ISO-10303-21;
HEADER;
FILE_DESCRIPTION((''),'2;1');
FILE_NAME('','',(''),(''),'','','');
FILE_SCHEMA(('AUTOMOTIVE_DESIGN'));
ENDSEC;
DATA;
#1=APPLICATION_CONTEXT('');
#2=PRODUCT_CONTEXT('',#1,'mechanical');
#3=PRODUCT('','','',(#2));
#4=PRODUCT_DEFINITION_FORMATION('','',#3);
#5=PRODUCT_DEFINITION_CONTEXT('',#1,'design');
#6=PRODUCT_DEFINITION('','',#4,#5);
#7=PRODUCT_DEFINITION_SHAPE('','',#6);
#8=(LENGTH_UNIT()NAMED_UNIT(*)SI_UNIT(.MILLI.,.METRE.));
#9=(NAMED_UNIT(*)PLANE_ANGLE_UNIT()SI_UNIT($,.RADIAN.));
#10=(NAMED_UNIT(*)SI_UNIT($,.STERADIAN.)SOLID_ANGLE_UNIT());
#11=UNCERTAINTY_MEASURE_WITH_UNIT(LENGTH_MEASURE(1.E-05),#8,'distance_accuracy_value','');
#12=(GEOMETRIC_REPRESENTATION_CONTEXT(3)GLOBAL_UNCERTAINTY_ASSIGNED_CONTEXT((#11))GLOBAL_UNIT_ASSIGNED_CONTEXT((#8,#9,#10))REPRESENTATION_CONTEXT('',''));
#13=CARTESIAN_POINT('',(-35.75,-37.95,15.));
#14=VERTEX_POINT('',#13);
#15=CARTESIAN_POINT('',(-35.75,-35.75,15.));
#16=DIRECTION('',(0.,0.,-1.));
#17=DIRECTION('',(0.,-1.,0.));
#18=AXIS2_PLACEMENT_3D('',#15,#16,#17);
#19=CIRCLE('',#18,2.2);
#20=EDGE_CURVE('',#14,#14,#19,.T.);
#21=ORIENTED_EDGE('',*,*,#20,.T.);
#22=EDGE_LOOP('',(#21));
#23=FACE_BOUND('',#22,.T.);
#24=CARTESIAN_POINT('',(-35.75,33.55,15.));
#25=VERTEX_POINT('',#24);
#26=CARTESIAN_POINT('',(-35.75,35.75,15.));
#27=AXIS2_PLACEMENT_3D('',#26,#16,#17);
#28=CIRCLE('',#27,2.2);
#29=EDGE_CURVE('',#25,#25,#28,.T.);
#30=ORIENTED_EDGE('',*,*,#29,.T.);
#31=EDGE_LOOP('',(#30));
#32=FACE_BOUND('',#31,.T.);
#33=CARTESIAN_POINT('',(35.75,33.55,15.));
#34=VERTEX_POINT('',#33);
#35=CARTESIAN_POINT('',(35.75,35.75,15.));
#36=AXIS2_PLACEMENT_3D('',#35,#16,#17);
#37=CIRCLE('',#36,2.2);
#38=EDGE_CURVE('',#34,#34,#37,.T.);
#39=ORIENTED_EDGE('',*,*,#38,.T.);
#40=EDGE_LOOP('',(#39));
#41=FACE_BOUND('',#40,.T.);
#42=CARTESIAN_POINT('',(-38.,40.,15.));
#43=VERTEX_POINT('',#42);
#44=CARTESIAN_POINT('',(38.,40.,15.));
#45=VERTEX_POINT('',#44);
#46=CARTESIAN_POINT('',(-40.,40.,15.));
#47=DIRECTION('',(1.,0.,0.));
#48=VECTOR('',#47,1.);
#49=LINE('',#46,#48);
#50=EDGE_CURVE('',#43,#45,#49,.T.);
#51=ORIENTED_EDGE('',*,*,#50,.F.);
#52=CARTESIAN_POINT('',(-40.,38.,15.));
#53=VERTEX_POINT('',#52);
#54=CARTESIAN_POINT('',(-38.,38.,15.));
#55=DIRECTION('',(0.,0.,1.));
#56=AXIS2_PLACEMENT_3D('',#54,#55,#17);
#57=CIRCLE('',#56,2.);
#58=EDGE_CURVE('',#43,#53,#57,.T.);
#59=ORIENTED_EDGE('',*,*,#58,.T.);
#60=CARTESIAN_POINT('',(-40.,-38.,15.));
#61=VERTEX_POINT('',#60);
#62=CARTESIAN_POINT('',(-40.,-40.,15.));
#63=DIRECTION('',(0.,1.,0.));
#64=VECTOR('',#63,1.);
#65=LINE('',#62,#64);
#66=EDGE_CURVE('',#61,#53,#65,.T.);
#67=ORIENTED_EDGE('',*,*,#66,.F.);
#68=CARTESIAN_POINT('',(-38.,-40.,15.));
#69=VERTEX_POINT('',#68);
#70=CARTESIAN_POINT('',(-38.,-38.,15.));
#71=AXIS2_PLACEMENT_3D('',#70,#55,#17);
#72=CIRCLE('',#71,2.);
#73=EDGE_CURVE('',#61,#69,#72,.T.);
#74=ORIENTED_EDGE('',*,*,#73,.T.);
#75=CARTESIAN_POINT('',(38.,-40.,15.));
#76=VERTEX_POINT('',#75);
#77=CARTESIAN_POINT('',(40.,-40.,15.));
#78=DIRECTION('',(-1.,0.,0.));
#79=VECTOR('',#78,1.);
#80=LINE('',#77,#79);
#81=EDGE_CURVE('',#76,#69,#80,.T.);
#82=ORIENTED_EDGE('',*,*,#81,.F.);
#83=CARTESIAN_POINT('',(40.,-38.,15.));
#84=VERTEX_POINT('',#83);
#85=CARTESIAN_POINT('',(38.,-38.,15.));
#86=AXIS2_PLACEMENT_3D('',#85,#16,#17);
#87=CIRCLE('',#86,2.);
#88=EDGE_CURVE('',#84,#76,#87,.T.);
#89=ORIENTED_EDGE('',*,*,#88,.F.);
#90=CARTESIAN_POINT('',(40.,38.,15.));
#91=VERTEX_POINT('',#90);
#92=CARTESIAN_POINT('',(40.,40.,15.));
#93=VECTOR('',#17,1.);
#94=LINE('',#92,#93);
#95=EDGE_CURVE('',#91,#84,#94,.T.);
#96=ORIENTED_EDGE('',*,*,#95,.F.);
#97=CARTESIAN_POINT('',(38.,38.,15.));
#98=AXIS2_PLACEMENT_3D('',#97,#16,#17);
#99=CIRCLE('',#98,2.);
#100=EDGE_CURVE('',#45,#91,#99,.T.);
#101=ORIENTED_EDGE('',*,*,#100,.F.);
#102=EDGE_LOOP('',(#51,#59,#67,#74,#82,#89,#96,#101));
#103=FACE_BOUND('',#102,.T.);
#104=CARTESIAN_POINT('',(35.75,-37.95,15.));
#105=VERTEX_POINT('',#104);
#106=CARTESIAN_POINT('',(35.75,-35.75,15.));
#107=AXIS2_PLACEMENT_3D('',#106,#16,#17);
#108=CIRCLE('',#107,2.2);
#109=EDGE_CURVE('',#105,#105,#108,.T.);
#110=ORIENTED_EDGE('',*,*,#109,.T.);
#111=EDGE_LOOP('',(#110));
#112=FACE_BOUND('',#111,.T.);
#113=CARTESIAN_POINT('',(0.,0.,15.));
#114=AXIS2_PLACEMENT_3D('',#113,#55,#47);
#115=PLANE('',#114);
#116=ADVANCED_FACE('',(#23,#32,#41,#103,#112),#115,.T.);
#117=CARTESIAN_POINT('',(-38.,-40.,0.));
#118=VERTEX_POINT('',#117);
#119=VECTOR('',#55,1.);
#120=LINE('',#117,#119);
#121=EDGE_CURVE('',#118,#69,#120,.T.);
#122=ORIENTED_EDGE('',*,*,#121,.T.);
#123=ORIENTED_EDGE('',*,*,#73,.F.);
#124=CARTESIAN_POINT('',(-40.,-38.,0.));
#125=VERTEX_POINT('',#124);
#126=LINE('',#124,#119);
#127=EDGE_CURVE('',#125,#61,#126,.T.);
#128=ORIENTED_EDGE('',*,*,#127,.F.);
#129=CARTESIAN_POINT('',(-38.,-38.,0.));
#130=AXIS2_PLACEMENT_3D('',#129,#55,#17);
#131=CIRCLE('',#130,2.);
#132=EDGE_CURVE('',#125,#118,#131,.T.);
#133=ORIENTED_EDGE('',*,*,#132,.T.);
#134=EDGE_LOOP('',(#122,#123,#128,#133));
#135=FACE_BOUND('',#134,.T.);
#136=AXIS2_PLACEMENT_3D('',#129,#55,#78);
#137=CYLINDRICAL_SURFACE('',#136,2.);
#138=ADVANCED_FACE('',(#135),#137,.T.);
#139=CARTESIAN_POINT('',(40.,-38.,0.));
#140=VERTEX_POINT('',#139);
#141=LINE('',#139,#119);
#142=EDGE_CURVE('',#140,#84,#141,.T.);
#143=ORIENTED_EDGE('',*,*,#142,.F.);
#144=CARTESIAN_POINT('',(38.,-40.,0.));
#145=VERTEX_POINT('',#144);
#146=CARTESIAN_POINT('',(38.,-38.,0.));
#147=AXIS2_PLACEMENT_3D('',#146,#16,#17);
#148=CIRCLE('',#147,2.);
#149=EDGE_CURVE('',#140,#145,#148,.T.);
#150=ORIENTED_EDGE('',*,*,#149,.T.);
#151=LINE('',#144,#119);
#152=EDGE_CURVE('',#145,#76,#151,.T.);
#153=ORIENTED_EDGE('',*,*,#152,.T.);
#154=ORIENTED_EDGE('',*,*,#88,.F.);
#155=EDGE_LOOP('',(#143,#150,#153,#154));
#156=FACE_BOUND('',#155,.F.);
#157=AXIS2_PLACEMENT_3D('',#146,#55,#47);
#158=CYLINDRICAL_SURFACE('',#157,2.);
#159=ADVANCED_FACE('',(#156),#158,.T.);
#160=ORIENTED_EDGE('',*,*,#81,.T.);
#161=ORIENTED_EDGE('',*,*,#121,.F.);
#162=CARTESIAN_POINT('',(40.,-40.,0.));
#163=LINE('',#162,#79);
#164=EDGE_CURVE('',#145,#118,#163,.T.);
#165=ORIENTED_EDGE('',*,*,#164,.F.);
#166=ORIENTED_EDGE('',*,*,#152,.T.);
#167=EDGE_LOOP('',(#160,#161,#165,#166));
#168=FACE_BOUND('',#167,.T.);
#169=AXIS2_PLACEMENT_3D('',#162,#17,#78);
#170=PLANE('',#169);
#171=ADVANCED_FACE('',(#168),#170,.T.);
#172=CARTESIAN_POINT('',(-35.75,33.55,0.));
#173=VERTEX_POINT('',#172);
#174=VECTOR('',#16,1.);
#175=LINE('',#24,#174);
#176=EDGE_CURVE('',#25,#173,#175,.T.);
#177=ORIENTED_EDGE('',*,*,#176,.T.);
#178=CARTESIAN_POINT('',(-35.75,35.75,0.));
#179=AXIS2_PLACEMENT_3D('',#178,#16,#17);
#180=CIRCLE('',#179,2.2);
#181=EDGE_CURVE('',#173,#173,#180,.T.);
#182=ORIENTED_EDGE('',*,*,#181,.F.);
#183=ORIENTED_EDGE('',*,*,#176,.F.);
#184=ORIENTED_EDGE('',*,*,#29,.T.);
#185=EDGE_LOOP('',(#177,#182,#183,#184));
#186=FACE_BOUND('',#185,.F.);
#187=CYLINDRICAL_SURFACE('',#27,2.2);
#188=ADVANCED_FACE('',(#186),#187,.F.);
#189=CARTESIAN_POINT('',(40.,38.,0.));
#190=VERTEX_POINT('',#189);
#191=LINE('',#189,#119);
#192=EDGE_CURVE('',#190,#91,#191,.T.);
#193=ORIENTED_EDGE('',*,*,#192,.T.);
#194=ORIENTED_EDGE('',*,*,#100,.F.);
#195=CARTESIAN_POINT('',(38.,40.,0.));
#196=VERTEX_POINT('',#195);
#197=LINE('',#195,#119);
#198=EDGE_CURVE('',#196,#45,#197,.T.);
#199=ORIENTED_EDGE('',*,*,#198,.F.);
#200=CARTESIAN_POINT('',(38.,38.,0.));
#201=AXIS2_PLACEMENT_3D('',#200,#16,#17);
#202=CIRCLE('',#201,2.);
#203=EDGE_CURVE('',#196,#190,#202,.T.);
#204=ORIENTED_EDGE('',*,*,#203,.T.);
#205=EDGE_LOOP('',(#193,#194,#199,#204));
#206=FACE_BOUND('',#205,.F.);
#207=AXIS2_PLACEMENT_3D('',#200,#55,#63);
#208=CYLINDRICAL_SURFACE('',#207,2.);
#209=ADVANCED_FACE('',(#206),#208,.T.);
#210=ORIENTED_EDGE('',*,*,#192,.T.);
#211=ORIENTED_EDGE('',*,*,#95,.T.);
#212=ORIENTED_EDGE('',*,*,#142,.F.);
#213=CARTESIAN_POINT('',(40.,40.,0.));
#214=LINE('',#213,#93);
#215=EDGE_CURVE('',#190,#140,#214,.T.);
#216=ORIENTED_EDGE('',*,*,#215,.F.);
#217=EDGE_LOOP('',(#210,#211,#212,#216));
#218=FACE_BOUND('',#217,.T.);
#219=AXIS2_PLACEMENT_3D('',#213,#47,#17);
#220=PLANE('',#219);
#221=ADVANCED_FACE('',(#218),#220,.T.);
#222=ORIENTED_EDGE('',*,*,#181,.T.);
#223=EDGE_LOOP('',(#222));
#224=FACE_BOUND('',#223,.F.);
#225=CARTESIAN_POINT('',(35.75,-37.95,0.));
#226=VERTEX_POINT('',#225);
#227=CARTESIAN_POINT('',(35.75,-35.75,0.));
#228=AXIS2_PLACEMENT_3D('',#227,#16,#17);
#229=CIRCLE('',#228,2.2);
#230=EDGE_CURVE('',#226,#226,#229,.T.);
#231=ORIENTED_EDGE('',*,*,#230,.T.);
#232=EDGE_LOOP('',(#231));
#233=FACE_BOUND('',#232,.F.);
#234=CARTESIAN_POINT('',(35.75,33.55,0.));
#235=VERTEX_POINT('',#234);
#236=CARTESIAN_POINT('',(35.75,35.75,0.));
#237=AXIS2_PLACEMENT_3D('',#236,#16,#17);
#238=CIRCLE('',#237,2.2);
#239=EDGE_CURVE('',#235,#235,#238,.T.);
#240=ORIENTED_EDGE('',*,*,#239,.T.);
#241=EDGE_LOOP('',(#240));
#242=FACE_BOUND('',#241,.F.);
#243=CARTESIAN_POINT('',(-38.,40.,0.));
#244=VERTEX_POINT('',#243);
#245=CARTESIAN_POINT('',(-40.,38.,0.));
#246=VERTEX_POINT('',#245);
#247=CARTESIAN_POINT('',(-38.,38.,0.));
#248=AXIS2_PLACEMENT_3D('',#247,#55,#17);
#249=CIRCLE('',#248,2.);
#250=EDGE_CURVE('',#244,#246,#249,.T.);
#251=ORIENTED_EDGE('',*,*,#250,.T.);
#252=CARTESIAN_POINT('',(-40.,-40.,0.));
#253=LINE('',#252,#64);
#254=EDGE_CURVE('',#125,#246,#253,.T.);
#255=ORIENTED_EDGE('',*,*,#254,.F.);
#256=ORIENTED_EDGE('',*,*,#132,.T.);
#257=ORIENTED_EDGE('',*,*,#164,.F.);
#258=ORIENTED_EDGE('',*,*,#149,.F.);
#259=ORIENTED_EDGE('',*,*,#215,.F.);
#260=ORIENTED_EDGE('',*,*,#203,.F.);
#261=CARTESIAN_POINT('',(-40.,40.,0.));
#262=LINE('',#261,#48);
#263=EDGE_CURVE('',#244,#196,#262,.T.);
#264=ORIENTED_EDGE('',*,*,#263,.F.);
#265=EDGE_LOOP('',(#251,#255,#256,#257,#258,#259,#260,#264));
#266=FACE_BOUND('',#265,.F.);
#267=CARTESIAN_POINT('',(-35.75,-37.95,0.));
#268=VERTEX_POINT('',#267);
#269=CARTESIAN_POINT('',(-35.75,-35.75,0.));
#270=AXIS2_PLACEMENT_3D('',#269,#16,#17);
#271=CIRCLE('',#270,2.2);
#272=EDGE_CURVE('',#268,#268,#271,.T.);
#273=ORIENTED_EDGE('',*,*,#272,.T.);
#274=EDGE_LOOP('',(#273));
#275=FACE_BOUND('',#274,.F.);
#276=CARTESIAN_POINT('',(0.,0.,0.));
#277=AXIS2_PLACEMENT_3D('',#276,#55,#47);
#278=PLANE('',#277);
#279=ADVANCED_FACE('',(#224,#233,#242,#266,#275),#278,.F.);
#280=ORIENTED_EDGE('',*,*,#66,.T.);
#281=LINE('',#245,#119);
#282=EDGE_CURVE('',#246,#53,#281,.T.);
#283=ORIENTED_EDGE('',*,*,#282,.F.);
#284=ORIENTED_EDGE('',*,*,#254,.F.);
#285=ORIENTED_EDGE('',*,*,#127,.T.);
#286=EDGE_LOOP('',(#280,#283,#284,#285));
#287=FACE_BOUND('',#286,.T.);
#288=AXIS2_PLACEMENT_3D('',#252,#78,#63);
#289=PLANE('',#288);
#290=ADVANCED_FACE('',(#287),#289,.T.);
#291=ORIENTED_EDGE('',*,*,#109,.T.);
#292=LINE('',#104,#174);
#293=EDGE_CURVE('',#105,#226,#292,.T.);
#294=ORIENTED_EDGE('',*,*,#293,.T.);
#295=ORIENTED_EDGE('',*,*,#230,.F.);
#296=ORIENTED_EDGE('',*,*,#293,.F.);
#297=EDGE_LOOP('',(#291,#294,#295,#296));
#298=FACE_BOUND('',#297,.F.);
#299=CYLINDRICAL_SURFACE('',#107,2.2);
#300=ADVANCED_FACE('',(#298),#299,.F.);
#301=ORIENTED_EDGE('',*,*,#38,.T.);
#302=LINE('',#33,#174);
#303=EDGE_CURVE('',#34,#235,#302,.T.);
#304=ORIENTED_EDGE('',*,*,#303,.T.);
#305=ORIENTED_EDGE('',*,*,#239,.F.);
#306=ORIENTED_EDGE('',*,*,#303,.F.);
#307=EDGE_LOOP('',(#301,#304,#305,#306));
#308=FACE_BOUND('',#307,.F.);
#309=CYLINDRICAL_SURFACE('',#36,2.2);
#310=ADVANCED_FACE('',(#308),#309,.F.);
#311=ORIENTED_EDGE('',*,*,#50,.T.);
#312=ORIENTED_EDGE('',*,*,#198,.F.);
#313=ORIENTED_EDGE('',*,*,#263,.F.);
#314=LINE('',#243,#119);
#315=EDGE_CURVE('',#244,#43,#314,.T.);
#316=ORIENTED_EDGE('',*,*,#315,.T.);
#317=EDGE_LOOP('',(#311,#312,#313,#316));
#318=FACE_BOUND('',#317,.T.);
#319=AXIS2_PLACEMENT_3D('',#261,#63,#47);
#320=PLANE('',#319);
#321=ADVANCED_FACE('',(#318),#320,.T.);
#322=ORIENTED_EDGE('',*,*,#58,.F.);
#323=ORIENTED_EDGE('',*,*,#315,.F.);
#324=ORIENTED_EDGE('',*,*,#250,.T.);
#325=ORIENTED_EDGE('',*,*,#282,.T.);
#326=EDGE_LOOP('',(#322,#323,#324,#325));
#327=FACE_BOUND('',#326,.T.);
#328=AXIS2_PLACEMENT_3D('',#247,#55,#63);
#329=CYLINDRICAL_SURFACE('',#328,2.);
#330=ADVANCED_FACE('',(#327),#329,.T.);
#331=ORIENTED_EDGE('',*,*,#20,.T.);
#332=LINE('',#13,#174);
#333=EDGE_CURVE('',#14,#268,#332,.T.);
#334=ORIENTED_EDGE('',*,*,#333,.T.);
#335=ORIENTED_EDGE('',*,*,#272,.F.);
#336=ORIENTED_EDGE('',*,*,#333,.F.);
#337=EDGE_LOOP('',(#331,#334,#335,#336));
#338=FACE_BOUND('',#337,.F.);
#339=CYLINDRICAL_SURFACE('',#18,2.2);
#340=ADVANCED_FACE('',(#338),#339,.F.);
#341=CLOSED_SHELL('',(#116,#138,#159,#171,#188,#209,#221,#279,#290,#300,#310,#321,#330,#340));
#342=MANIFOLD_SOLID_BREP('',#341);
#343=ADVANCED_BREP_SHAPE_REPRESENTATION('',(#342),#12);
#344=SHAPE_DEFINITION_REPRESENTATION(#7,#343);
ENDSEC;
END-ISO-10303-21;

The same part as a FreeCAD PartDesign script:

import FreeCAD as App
import Part
import Sketcher
Q = App.Units.Quantity


def edges_at(feature, points):
    """Names of the edges that pass closest to the given points."""
    edges = feature.Shape.Edges
    near = lambda p: min(range(len(edges)), key=lambda i: edges[i].distToShape(Part.Vertex(*p))[0])
    return sorted({f"Edge{near(p) + 1}" for p in points})

doc = App.newDocument("Part")
body = doc.addObject("PartDesign::Body", "Body")

sketch1 = body.newObject("Sketcher::SketchObject", "Sketch")
sketch1.AttachmentSupport = (doc.getObject("XY_Plane"), [""])
sketch1.MapMode = "FlatFace"
sketch1.addGeometry([
    Part.LineSegment(App.Vector(40, 40, 0), App.Vector(-40, 40, 0)),
    Part.LineSegment(App.Vector(-40, 40, 0), App.Vector(-40, -40, 0)),
    Part.LineSegment(App.Vector(-40, -40, 0), App.Vector(40, -40, 0)),
    Part.LineSegment(App.Vector(40, -40, 0), App.Vector(40, 40, 0)),
], False)
sketch1.addConstraint([
    Sketcher.Constraint("Coincident", 0, 2, 1, 1),
    Sketcher.Constraint("Coincident", 1, 2, 2, 1),
    Sketcher.Constraint("Coincident", 2, 2, 3, 1),
    Sketcher.Constraint("Coincident", 3, 2, 0, 1),
    Sketcher.Constraint("Horizontal", 0),
    Sketcher.Constraint("Vertical", 1),
    Sketcher.Constraint("Horizontal", 2),
    Sketcher.Constraint("Vertical", 3),
    Sketcher.Constraint("Symmetric", 0, 2, 2, 2, -1, 1),
    Sketcher.Constraint("Equal", 2, 1),
    Sketcher.Constraint("DistanceX", 0, 2, 0, 1, Q("80 mm")),
])
pad1 = body.newObject("PartDesign::Pad", "Pad")
pad1.Profile = sketch1
pad1.Length = 15

sketch2 = body.newObject("Sketcher::SketchObject", "Sketch001")
sketch2.AttachmentSupport = (doc.getObject("XY_Plane"), [""])
sketch2.MapMode = "FlatFace"
sketch2.AttachmentOffset = App.Placement(App.Vector(0, 0, 15), App.Rotation())
sketch2.addGeometry([
    Part.Circle(App.Vector(-35.8, 35.8, 0), App.Vector(0, 0, 1), 2.2),
    Part.Circle(App.Vector(35.8, 35.8, 0), App.Vector(0, 0, 1), 2.2),
    Part.Circle(App.Vector(-35.8, -35.8, 0), App.Vector(0, 0, 1), 2.2),
    Part.Circle(App.Vector(35.8, -35.8, 0), App.Vector(0, 0, 1), 2.2),
], False)
sketch2.addConstraint([
    Sketcher.Constraint("Equal", 0, 1),
    Sketcher.Constraint("Equal", 1, 2),
    Sketcher.Constraint("Equal", 2, 3),
    Sketcher.Constraint("Symmetric", 1, 3, 2, 3, -1, 1),
    Sketcher.Constraint("Symmetric", 0, 3, 3, 3, -1, 1),
    Sketcher.Constraint("Symmetric", 0, 3, 1, 3, -2),
    Sketcher.Constraint("Diameter", 0, Q("4.4 mm")),
    Sketcher.Constraint("DistanceX", 0, 3, 1, 3, Q("71.5 mm")),
    Sketcher.Constraint("DistanceY", 2, 3, 0, 3, Q("71.5 mm")),
])
doc.recompute()
hole = body.newObject("PartDesign::Hole", "Hole")
hole.Profile = sketch2
hole.ThreadType = "None"
hole.Diameter = 4.4
hole.DepthType = "ThroughAll"
doc.recompute()

fillet = body.newObject("PartDesign::Fillet", "Fillet")
fillet.Base = (hole, edges_at(hole, [
    (-40, 40, 7.5),
    (40, 40, 7.5),
    (40, -40, 7.5),
    (-40, -40, 7.5),
]))
fillet.Radius = 2

doc.recompute()
